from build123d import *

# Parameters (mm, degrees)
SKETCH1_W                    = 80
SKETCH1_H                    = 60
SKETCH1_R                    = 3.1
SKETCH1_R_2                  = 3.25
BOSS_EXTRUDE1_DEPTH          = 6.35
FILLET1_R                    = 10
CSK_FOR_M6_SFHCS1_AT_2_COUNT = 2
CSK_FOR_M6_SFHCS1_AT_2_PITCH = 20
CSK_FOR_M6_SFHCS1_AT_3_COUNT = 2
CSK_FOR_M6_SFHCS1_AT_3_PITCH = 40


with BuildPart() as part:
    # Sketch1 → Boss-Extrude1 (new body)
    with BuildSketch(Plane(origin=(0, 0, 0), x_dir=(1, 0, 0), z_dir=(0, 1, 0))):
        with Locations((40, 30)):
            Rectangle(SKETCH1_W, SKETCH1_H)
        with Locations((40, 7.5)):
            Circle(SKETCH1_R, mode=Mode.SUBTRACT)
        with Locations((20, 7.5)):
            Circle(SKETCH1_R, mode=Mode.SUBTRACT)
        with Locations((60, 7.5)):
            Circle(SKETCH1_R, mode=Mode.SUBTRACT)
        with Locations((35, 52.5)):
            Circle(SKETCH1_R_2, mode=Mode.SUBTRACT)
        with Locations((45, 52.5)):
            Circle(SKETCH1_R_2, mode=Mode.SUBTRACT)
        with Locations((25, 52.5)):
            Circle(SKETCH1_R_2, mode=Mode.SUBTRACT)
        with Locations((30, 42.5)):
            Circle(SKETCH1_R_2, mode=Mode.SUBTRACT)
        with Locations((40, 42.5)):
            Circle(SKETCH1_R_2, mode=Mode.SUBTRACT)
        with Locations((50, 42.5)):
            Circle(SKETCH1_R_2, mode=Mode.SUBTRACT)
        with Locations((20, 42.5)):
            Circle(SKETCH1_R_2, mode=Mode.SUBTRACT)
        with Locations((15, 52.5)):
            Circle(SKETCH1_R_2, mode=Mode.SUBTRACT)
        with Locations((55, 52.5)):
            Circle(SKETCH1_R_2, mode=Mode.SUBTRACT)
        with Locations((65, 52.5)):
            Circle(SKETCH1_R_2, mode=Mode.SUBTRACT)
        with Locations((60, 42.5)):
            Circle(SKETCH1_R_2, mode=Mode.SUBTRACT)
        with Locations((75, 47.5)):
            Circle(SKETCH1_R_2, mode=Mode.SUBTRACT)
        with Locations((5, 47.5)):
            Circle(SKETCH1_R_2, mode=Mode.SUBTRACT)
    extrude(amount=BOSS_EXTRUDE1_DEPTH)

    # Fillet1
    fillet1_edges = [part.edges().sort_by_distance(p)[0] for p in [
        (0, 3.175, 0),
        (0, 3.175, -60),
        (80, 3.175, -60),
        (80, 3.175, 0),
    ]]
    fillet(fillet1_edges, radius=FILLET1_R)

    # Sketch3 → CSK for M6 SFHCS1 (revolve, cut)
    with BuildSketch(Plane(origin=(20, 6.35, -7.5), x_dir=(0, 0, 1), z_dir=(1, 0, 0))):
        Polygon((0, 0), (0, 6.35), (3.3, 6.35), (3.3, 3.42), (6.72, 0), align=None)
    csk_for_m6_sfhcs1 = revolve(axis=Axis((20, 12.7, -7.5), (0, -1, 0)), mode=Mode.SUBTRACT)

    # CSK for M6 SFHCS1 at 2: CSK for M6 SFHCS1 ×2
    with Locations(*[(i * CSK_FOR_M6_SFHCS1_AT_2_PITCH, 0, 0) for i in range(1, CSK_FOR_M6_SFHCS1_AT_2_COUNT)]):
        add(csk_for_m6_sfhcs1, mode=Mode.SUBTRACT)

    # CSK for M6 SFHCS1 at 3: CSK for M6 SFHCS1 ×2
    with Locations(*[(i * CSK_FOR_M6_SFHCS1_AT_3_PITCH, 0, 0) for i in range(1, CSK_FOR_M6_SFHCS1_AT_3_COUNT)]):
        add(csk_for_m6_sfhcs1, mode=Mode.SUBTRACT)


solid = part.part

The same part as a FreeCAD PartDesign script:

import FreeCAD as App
import Part
import Sketcher

V = App.Vector
Q = App.Units.Quantity


def edges_at(feature, points):
    """Names of the edges that pass closest to the given points."""
    edges = feature.Shape.Edges
    near = lambda p: min(range(len(edges)), key=lambda i: edges[i].distToShape(Part.Vertex(*p))[0])
    return sorted({f"Edge{near(p) + 1}" for p in points})


def add_polygon(sketch, points):
    """Adds a closed chain of lines whose ends are joined by coincident constraints."""
    first, n = sketch.GeometryCount, len(points)
    for a, b in zip(points, points[1:] + points[:1]):
        sketch.addGeometry(Part.LineSegment(App.Vector(*a, 0), App.Vector(*b, 0)), False)
    for i in range(n):
        sketch.addConstraint(Sketcher.Constraint("Coincident", first + i, 2, first + (i + 1) % n, 1))

doc = App.newDocument("Part")
body = doc.addObject("PartDesign::Body", "Body")

# Sketch on XZ plane
sketch1 = body.newObject("Sketcher::SketchObject", "Sketch")
sketch1.AttachmentSupport = (doc.getObject("XZ_Plane"), [""])
sketch1.MapMode = "FlatFace"
add_polygon(sketch1, [(0, -60), (0, 0), (80, 0), (80, -60)])  # lines 0-3
sketch1.addGeometry(Part.Circle(V(20, -7.5, 0), V(0, 0, 1), 3.1), False)  # 4
sketch1.addGeometry(Part.Circle(V(40, -7.5, 0), V(0, 0, 1), 3.1), False)  # 5
sketch1.addGeometry(Part.Circle(V(60, -7.5, 0), V(0, 0, 1), 3.1), False)  # 6
sketch1.addGeometry(Part.Circle(V(20, -42.5, 0), V(0, 0, 1), 3.25), False)  # 7
sketch1.addGeometry(Part.Circle(V(30, -42.5, 0), V(0, 0, 1), 3.25), False)  # 8
sketch1.addGeometry(Part.Circle(V(5, -47.5, 0), V(0, 0, 1), 3.25), False)  # 9
sketch1.addGeometry(Part.Circle(V(15, -52.5, 0), V(0, 0, 1), 3.25), False)  # 10
sketch1.addGeometry(Part.Circle(V(25, -52.5, 0), V(0, 0, 1), 3.25), False)  # 11
sketch1.addGeometry(Part.Circle(V(35, -52.5, 0), V(0, 0, 1), 3.25), False)  # 12
sketch1.addGeometry(Part.Circle(V(40, -42.5, 0), V(0, 0, 1), 3.25), False)  # 13
sketch1.addGeometry(Part.Circle(V(50, -42.5, 0), V(0, 0, 1), 3.25), False)  # 14
sketch1.addGeometry(Part.Circle(V(60, -42.5, 0), V(0, 0, 1), 3.25), False)  # 15
sketch1.addGeometry(Part.Circle(V(45, -52.5, 0), V(0, 0, 1), 3.25), False)  # 16
sketch1.addGeometry(Part.Circle(V(55, -52.5, 0), V(0, 0, 1), 3.25), False)  # 17
sketch1.addGeometry(Part.Circle(V(75, -47.5, 0), V(0, 0, 1), 3.25), False)  # 18
sketch1.addGeometry(Part.Circle(V(65, -52.5, 0), V(0, 0, 1), 3.25), False)  # 19
sketch1.addConstraint([
    Sketcher.Constraint("Vertical", 0),
    Sketcher.Constraint("Horizontal", 1),
    Sketcher.Constraint("Vertical", 2),
    Sketcher.Constraint("Horizontal", 3),
    Sketcher.Constraint("Coincident", 0, 2, -1, 1),
    Sketcher.Constraint("Equal", 4, 5),
    Sketcher.Constraint("Equal", 5, 6),
    Sketcher.Constraint("Equal", 7, 8),
    Sketcher.Constraint("Equal", 8, 9),
    Sketcher.Constraint("Equal", 9, 10),
    Sketcher.Constraint("Equal", 10, 11),
    Sketcher.Constraint("Equal", 11, 12),
    Sketcher.Constraint("Equal", 12, 13),
    Sketcher.Constraint("Equal", 13, 14),
    Sketcher.Constraint("Equal", 14, 15),
    Sketcher.Constraint("Equal", 15, 16),
    Sketcher.Constraint("Equal", 16, 17),
    Sketcher.Constraint("Equal", 17, 18),
    Sketcher.Constraint("Equal", 18, 19),
    Sketcher.Constraint("Horizontal", 4, 3, 5, 3),
    Sketcher.Constraint("Horizontal", 5, 3, 6, 3),
    Sketcher.Constraint("Horizontal", 7, 3, 8, 3),
    Sketcher.Constraint("Horizontal", 10, 3, 11, 3),
    Sketcher.Constraint("Horizontal", 11, 3, 12, 3),
    Sketcher.Constraint("Horizontal", 8, 3, 13, 3),
    Sketcher.Constraint("Horizontal", 13, 3, 14, 3),
    Sketcher.Constraint("Horizontal", 14, 3, 15, 3),
    Sketcher.Constraint("Horizontal", 12, 3, 16, 3),
    Sketcher.Constraint("Horizontal", 16, 3, 17, 3),
    Sketcher.Constraint("Horizontal", 9, 3, 18, 3),
    Sketcher.Constraint("Horizontal", 17, 3, 19, 3),
    Sketcher.Constraint("Vertical", 4, 3, 7, 3),
    Sketcher.Constraint("Vertical", 5, 3, 13, 3),
    Sketcher.Constraint("Vertical", 6, 3, 15, 3),
    Sketcher.Constraint("Diameter", 4, 6.2),
    Sketcher.Constraint("Diameter", 7, 6.5),
    Sketcher.Constraint("DistanceX", 1, 1, 1, 2, 80.0),
    Sketcher.Constraint("DistanceY", 0, 1, 0, 2, 60.0),
    Sketcher.Constraint("DistanceX", -1, 1, 4, 3, 20.0),
    Sketcher.Constraint("DistanceX", -1, 1, 5, 3, 40.0),
    Sketcher.Constraint("DistanceX", -1, 1, 6, 3, 60.0),
    Sketcher.Constraint("DistanceX", -1, 1, 8, 3, 30.0),
    Sketcher.Constraint("DistanceX", -1, 1, 9, 3, 5.0),
    Sketcher.Constraint("DistanceX", -1, 1, 10, 3, 15.0),
    Sketcher.Constraint("DistanceX", -1, 1, 11, 3, 25.0),
    Sketcher.Constraint("DistanceX", -1, 1, 12, 3, 35.0),
    Sketcher.Constraint("DistanceX", -1, 1, 14, 3, 50.0),
    Sketcher.Constraint("DistanceX", -1, 1, 16, 3, 45.0),
    Sketcher.Constraint("DistanceX", -1, 1, 17, 3, 55.0),
    Sketcher.Constraint("DistanceX", -1, 1, 18, 3, 75.0),
    Sketcher.Constraint("DistanceX", -1, 1, 19, 3, 65.0),
    Sketcher.Constraint("DistanceY", 7, 3, 4, 3, 35.0),
    Sketcher.Constraint("DistanceY", 9, 3, 7, 3, 5.0),
    Sketcher.Constraint("DistanceY", 10, 3, 7, 3, 10.0),
    Sketcher.Constraint("DistanceY", 4, 3, -1, 1, 7.5),
])
pad1 = body.newObject("PartDesign::Pad", "Pad")
pad1.Profile = sketch1
pad1.Length = 6.35
pad1.Reversed = True
doc.recompute()

fillet = body.newObject("PartDesign::Fillet", "Fillet")
fillet.Base = (pad1, edges_at(pad1, [
    (0, 3.175, 0),
    (0, 3.175, -60),
    (80, 3.175, -60),
    (80, 3.175, 0),
]))
fillet.Radius = 10

# Sketch on YZ plane
sketch2 = body.newObject("Sketcher::SketchObject", "Sketch001")
sketch2.AttachmentSupport = (doc.getObject("YZ_Plane"), [""])
sketch2.MapMode = "FlatFace"
sketch2.AttachmentOffset = App.Placement(V(0, 0, 20), App.Rotation())
add_polygon(sketch2, [(0, -7.5), (6.35, -7.5), (6.35, -0.78), (2.93, -4.2), (0, -4.2)])  # lines 0-4
sketch2.addGeometry(Part.LineSegment(V(6.35, -7.5, 0), V(0, -7.5, 0)), True)  # axis
sketch2.addConstraint([
    Sketcher.Constraint("Horizontal", 0),
    Sketcher.Constraint("Vertical", 1),
    Sketcher.Constraint("Horizontal", 3),
    Sketcher.Constraint("Vertical", 4),
    Sketcher.Constraint("Horizontal", 5),
    Sketcher.Constraint("Coincident", 5, 1, 0, 2),
    Sketcher.Constraint("PointOnObject", 3, 2, -2),
    Sketcher.Constraint("PointOnObject", 5, 2, -2),
    Sketcher.Constraint("Angle", 2, Q("-135 deg")),
    Sketcher.Constraint("DistanceY", 4, 2, 4, 1, 3.3),
    Sketcher.Constraint("DistanceX", 0, 1, 0, 2, 6.35),
    Sketcher.Constraint("DistanceX", 3, 2, 3, 1, 2.93),
    Sketcher.Constraint("DistanceY", 0, 2, -1, 1, 7.5),
])
groove = body.newObject("PartDesign::Groove", "Groove")
groove.Profile = sketch2
groove.ReferenceAxis = (sketch2, ["Axis0"])
groove.Angle = 360
doc.recompute()

linearpattern = body.newObject("PartDesign::LinearPattern", "LinearPattern")
linearpattern.Originals = [groove]
linearpattern.Direction = (doc.getObject("X_Axis"), [""])
linearpattern.Mode = "offset"
linearpattern.Offset = 20
linearpattern.Occurrences = 2
body.Tip = linearpattern
doc.recompute()

linearpattern2 = body.newObject("PartDesign::LinearPattern", "LinearPattern001")
linearpattern2.Originals = [groove]
linearpattern2.Direction = (doc.getObject("X_Axis"), [""])
linearpattern2.Mode = "offset"
linearpattern2.Offset = 40
linearpattern2.Occurrences = 2
body.Tip = linearpattern2

doc.recompute()
